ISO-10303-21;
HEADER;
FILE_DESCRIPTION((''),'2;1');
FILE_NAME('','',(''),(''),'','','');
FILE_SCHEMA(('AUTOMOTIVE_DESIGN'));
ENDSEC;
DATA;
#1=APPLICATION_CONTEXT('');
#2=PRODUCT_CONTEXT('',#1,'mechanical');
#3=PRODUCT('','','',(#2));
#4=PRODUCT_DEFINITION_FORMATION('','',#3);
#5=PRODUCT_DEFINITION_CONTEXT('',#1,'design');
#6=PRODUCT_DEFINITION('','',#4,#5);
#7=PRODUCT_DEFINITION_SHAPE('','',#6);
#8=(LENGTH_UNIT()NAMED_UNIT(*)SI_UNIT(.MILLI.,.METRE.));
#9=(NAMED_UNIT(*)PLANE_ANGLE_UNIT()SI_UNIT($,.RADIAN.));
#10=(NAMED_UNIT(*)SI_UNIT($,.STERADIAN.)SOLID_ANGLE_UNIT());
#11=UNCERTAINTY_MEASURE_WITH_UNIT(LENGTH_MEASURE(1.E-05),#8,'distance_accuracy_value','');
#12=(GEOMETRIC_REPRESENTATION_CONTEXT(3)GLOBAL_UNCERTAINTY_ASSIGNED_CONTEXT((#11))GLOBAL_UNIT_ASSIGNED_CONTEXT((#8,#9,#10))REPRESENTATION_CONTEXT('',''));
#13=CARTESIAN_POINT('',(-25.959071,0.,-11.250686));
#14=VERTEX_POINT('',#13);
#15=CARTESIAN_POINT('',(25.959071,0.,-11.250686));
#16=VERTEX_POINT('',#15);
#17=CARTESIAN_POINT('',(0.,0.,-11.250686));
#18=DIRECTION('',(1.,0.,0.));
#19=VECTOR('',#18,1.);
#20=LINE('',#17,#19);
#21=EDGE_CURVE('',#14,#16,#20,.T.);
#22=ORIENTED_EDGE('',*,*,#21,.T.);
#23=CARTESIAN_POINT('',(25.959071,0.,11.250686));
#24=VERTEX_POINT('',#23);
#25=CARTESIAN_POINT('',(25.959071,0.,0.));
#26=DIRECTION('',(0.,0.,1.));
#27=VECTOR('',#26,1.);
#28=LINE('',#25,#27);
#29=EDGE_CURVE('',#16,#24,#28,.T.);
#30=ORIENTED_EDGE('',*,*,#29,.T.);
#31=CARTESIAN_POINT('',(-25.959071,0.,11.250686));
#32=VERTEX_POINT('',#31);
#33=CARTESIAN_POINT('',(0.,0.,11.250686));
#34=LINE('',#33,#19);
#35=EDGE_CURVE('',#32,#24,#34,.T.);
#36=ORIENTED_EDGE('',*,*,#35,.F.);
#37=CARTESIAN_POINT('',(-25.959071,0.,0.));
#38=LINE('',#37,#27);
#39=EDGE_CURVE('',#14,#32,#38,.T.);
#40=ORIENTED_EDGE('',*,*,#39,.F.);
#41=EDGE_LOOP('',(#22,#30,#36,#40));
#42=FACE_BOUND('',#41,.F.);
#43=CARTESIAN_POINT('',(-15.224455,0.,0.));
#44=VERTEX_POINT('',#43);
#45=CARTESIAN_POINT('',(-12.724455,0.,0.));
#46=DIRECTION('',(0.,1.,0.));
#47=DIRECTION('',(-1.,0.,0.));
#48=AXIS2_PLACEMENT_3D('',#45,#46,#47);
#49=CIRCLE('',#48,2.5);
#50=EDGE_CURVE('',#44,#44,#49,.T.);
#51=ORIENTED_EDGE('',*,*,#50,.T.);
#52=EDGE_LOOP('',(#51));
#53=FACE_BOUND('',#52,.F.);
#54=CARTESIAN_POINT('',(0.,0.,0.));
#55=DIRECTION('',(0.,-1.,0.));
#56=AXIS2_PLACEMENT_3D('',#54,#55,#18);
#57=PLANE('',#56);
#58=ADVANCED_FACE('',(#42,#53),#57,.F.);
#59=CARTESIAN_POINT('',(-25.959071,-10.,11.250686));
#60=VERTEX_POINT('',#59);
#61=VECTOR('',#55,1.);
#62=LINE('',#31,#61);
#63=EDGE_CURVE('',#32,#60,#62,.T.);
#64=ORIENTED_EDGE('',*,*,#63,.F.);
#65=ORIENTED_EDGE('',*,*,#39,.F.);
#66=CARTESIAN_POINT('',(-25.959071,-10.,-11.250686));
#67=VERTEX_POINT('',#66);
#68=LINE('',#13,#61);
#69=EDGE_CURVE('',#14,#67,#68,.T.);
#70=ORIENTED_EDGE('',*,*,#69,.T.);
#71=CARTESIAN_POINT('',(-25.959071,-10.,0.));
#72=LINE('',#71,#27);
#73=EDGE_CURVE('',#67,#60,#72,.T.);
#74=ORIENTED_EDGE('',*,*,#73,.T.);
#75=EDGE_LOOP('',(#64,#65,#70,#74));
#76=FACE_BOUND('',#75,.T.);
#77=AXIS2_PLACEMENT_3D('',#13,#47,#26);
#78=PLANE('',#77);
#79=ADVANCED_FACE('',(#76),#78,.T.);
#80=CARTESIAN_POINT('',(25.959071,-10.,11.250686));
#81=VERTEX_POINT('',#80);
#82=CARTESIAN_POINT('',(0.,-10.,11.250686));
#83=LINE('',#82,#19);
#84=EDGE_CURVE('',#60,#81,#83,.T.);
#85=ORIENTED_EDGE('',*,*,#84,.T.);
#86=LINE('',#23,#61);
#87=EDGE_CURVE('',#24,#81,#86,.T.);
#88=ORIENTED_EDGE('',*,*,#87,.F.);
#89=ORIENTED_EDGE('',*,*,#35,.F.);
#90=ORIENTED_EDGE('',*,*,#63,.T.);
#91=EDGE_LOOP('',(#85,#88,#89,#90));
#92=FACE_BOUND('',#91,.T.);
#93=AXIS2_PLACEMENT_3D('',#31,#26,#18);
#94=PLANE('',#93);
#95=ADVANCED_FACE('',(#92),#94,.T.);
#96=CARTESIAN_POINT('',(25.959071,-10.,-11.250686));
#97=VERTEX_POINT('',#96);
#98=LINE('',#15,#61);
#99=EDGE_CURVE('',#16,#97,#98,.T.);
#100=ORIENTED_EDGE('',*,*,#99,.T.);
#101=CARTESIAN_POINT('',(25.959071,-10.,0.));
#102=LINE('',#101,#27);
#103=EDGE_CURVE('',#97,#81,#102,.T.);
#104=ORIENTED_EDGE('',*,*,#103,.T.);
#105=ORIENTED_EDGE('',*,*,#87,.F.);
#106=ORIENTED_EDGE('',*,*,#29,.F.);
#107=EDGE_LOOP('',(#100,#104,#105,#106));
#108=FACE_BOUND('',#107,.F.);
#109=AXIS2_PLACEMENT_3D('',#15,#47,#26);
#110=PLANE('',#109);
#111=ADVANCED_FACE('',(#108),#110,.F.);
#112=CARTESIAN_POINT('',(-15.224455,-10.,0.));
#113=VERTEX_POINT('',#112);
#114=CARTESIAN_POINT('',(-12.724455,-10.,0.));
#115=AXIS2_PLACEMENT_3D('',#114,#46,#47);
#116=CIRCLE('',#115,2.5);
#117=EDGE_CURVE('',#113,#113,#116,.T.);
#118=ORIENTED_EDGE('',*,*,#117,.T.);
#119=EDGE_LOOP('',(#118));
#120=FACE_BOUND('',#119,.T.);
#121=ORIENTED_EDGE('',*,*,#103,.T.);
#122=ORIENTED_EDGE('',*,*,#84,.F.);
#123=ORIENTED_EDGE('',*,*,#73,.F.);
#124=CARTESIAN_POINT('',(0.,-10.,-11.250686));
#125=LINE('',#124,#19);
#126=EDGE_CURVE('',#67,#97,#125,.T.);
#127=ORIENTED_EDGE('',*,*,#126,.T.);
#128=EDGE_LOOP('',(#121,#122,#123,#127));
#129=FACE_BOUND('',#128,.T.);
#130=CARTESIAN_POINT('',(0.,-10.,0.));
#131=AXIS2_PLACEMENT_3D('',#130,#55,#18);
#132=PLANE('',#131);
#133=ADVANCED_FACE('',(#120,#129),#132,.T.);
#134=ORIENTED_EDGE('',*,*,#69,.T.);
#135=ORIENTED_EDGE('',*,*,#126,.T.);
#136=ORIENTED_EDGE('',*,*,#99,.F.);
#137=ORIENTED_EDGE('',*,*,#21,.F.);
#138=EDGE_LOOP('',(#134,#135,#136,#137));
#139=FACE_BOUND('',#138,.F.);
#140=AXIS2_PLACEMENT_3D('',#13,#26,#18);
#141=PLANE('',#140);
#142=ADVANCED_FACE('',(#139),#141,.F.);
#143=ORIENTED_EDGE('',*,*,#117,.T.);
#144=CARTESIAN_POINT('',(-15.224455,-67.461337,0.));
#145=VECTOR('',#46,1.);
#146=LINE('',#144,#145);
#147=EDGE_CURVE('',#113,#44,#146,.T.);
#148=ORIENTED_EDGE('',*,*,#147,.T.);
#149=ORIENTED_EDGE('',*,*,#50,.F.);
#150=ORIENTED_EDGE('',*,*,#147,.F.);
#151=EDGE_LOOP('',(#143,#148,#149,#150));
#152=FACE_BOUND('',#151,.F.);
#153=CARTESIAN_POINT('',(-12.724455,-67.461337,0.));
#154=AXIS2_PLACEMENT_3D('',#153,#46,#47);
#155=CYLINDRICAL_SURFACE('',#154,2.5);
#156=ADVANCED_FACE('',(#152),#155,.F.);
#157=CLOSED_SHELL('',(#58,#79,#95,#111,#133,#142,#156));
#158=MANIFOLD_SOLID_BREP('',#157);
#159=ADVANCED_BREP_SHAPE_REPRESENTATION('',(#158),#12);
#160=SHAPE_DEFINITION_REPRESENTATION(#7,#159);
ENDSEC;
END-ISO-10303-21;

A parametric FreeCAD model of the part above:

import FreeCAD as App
import Part
import Sketcher

doc = App.newDocument("Part")
body = doc.addObject("PartDesign::Body", "Body")

sketch1 = body.newObject("Sketcher::SketchObject", "Sketch")
sketch1.AttachmentSupport = (doc.getObject("XZ_Plane"), [""])
sketch1.MapMode = "FlatFace"
sketch1.addGeometry(Part.LineSegment(App.Vector(-26, 11, 0), App.Vector(-26, -11, 0)), False)
sketch1.addGeometry(Part.LineSegment(App.Vector(-26, -11, 0), App.Vector(26, -11, 0)), False)
sketch1.addGeometry(Part.LineSegment(App.Vector(26, -11, 0), App.Vector(26, 11, 0)), False)
sketch1.addGeometry(Part.LineSegment(App.Vector(26, 11, 0), App.Vector(-26, 11, 0)), False)
sketch1.addConstraint(Sketcher.Constraint("Coincident", 0, 2, 1, 1))
sketch1.addConstraint(Sketcher.Constraint("Coincident", 1, 2, 2, 1))
sketch1.addConstraint(Sketcher.Constraint("Coincident", 2, 2, 3, 1))
sketch1.addConstraint(Sketcher.Constraint("Coincident", 3, 2, 0, 1))
sketch1.addConstraint(Sketcher.Constraint("Vertical", 0))
sketch1.addConstraint(Sketcher.Constraint("Horizontal", 1))
sketch1.addConstraint(Sketcher.Constraint("Vertical", 2))
sketch1.addConstraint(Sketcher.Constraint("Horizontal", 3))
sketch1.addConstraint(Sketcher.Constraint("Symmetric", 0, 2, 2, 2, -1, 1))
sketch1.addConstraint(Sketcher.Constraint("DistanceY", 0, 2, 0, 1, 22.501372))
sketch1.addConstraint(Sketcher.Constraint("DistanceX", 1, 1, 1, 2, 51.918142))
pad1 = body.newObject("PartDesign::Pad", "Pad")
pad1.Profile = sketch1
pad1.Length = 10

sketch2 = body.newObject("Sketcher::SketchObject", "Sketch001")
sketch2.AttachmentSupport = (doc.getObject("XZ_Plane"), [""])
sketch2.MapMode = "FlatFace"
sketch2.AttachmentOffset = App.Placement(App.Vector(0, 0, 10), App.Rotation())
sketch2.addGeometry(Part.Circle(App.Vector(-12.7, 0, 0), App.Vector(0, 0, 1), 2.5), False)
sketch2.addConstraint(Sketcher.Constraint("PointOnObject", 0, 3, -1))
sketch2.addConstraint(Sketcher.Constraint("Diameter", 0, 5.0))
sketch2.addConstraint(Sketcher.Constraint("DistanceX", 0, 3, -1, 1, 12.724455))
doc.recompute()
hole = body.newObject("PartDesign::Hole", "Hole")
hole.Profile = sketch2
hole.ThreadType = "None"
hole.Diameter = 5
hole.DepthType = "ThroughAll"

doc.recompute()
